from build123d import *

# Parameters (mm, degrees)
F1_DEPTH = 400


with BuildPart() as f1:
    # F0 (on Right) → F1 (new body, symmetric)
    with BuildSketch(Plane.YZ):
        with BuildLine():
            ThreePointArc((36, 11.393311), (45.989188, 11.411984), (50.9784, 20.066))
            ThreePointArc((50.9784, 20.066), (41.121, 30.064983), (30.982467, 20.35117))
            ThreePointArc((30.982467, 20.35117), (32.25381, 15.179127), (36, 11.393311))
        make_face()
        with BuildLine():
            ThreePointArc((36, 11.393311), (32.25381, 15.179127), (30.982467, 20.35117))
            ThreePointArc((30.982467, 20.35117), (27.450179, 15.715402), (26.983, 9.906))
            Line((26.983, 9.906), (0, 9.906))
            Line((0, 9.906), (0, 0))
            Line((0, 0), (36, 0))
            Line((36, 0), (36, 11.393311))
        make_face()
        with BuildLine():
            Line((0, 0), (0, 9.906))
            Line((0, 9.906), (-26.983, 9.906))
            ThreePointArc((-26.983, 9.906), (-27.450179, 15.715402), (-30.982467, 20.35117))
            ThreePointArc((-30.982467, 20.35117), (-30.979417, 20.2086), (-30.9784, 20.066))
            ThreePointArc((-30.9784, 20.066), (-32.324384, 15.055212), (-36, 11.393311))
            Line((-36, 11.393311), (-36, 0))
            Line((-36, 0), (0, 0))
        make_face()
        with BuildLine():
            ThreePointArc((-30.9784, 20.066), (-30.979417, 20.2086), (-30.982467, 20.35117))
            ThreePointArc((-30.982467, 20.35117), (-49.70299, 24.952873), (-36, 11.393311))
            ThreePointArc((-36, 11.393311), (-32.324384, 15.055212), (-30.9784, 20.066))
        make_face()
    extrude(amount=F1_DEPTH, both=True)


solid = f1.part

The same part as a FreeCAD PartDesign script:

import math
import FreeCAD as App
import Part
import Sketcher

doc = App.newDocument("Part")
body = doc.addObject("PartDesign::Body", "Body")

# Sketch on YZ plane
sketch1 = body.newObject("Sketcher::SketchObject", "Sketch")
sketch1.AttachmentSupport = (doc.getObject("YZ_Plane"), [""])
sketch1.MapMode = "FlatFace"
sketch1.addGeometry([
    Part.ArcOfCircle(Part.Circle(App.Vector(41, 20, 0), App.Vector(0, 0, 1), 10), math.radians(-120), math.radians(0)),  # 0
    Part.ArcOfCircle(Part.Circle(App.Vector(41, 20, 0), App.Vector(0, 0, 1), 10), math.radians(0), math.radians(178)),  # 1
    Part.ArcOfCircle(Part.Circle(App.Vector(37, 12, 0), App.Vector(0, 0, 1), 10), math.radians(126), math.radians(192)),  # 2
    Part.LineSegment(App.Vector(27, 10, 0), App.Vector(-27, 10, 0)),  # 3
    Part.ArcOfCircle(Part.Circle(App.Vector(-37, 12, 0), App.Vector(0, 0, 1), 10), math.radians(-12), math.radians(54)),  # 4
    Part.ArcOfCircle(Part.Circle(App.Vector(-41, 20, 0), App.Vector(0, 0, 1), 10), math.radians(2), math.radians(300)),  # 5
    Part.LineSegment(App.Vector(-36, 11, 0), App.Vector(-36, 0, 0)),  # 6
    Part.LineSegment(App.Vector(-36, 0, 0), App.Vector(36, 0, 0)),  # 7
    Part.LineSegment(App.Vector(36, 0, 0), App.Vector(36, 11, 0)),  # 8
], False)
sketch1.addConstraint([
    Sketcher.Constraint("Tangent", 0, 2, 1, 1),
    Sketcher.Constraint("Coincident", 1, 2, 2, 1),
    Sketcher.Constraint("Coincident", 2, 2, 3, 1),
    Sketcher.Constraint("Coincident", 3, 2, 4, 1),
    Sketcher.Constraint("Coincident", 4, 2, 5, 1),
    Sketcher.Constraint("Coincident", 5, 2, 6, 1),
    Sketcher.Constraint("Coincident", 6, 2, 7, 1),
    Sketcher.Constraint("Coincident", 7, 2, 8, 1),
    Sketcher.Constraint("Coincident", 8, 2, 0, 1),
    Sketcher.Constraint("Horizontal", 3),
    Sketcher.Constraint("Vertical", 6),
    Sketcher.Constraint("Horizontal", 7),
    Sketcher.Constraint("Vertical", 8),
    Sketcher.Constraint("Equal", 0, 1),
    Sketcher.Constraint("Equal", 2, 4),
    Sketcher.Constraint("Equal", 1, 5),
    Sketcher.Constraint("Symmetric", 6, 2, 7, 2, -1, 1),
    Sketcher.Constraint("Symmetric", 2, 3, 4, 3, -2),
    Sketcher.Constraint("Symmetric", 0, 3, 5, 3, -2),
    Sketcher.Constraint("Horizontal", 5, 3, 0, 2),
    Sketcher.Constraint("Radius", 0, 10.000001),
    Sketcher.Constraint("DistanceX", 7, 1, 7, 2, 72.0),
    Sketcher.Constraint("DistanceX", 3, 2, 3, 1, 53.966),
    Sketcher.Constraint("Radius", 2, 10.349228),
    Sketcher.Constraint("DistanceY", 2, 2, 1, 3, 10.16),
    Sketcher.Constraint("DistanceY", -1, 1, 0, 3, 20.066001),
    Sketcher.Constraint("DistanceY", 6, 2, 6, 1, 11.393311),
    Sketcher.Constraint("DistanceY", -1, 1, 1, 2, 20.35117),
])
pad1 = body.newObject("PartDesign::Pad", "Pad")
pad1.Profile = sketch1
pad1.Length = 800
pad1.Midplane = True

doc.recompute()
